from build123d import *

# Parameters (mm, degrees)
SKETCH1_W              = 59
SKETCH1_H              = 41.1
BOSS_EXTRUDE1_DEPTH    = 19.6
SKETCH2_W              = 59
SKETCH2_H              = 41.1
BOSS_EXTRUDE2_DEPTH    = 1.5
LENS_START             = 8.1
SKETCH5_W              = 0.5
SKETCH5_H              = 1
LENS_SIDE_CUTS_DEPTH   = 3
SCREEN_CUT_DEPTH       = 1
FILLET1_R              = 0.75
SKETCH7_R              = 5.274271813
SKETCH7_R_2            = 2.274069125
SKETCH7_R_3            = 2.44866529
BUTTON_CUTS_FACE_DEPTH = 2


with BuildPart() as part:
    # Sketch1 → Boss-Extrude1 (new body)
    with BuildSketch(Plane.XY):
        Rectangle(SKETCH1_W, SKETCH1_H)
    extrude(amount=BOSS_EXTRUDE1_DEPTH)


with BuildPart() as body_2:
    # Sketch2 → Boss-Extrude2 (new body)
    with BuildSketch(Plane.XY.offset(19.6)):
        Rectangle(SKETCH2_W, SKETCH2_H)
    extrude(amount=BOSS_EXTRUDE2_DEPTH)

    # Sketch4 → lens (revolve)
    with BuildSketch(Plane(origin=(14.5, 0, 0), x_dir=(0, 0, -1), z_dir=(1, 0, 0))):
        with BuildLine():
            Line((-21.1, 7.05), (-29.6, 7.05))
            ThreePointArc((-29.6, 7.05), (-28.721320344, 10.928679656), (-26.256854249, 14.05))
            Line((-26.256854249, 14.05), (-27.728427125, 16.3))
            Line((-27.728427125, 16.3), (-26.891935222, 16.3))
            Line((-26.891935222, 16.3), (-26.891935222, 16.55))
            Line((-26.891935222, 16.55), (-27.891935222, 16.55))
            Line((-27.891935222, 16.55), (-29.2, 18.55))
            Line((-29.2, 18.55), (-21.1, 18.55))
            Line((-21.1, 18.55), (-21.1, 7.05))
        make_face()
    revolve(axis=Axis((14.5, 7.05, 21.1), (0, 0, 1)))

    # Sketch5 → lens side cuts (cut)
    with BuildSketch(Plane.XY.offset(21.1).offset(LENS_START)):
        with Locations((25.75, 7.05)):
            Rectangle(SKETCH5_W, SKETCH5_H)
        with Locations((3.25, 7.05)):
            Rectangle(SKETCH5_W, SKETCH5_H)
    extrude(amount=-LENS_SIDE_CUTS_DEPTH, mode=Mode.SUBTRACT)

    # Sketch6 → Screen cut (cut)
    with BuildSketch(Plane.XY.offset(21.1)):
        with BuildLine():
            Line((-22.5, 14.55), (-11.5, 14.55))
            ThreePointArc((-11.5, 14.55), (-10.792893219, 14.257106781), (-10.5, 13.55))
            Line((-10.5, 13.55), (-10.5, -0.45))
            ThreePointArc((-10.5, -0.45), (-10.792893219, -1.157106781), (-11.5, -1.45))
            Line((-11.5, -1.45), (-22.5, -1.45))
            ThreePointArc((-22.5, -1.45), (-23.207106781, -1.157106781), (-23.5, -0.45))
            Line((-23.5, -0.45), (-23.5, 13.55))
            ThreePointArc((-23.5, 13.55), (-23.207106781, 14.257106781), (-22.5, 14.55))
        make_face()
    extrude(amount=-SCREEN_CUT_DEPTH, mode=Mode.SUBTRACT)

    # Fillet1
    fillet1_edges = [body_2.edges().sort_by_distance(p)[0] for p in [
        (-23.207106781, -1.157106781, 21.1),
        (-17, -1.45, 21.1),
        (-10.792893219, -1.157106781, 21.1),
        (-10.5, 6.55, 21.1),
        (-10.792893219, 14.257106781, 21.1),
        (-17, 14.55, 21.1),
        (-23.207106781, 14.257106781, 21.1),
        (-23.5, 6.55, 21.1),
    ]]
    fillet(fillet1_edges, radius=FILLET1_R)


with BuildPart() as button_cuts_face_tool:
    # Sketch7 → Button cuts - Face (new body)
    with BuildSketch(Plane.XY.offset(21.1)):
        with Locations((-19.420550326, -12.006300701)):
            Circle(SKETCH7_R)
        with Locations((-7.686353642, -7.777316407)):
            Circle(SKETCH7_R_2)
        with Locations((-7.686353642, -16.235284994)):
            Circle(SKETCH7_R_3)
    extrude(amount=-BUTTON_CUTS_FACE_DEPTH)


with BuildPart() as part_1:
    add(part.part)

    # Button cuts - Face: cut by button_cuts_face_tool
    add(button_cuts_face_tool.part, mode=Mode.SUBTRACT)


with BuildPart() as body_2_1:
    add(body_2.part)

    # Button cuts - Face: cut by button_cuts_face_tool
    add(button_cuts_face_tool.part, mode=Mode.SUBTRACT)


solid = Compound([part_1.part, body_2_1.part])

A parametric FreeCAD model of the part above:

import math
import FreeCAD as App
import Part
import Sketcher
from FreeCAD import Vector
Q = App.Units.Quantity


def edges_at(feature, points):
    """Names of the edges that pass closest to the given points."""
    edges = feature.Shape.Edges
    near = lambda p: min(range(len(edges)), key=lambda i: edges[i].distToShape(Part.Vertex(*p))[0])
    return sorted({f"Edge{near(p) + 1}" for p in points})

doc = App.newDocument("Part")
body = doc.addObject("PartDesign::Body", "Body")

# Sketch on XY plane
sketch1 = body.newObject("Sketcher::SketchObject", "Sketch")
sketch1.AttachmentSupport = (doc.getObject("XY_Plane"), [""])
sketch1.MapMode = "FlatFace"
sketch1.addGeometry(Part.LineSegment(Vector(-29.5, 20.55, 0), Vector(-29.5, -20.55, 0)), False)
sketch1.addGeometry(Part.LineSegment(Vector(-29.5, -20.55, 0), Vector(29.5, -20.55, 0)), False)
sketch1.addGeometry(Part.LineSegment(Vector(29.5, -20.55, 0), Vector(29.5, 20.55, 0)), False)
sketch1.addGeometry(Part.LineSegment(Vector(29.5, 20.55, 0), Vector(-29.5, 20.55, 0)), False)
sketch1.addConstraint(Sketcher.Constraint("Coincident", 0, 2, 1, 1))
sketch1.addConstraint(Sketcher.Constraint("Coincident", 1, 2, 2, 1))
sketch1.addConstraint(Sketcher.Constraint("Coincident", 2, 2, 3, 1))
sketch1.addConstraint(Sketcher.Constraint("Coincident", 3, 2, 0, 1))
sketch1.addConstraint(Sketcher.Constraint("Vertical", 0))
sketch1.addConstraint(Sketcher.Constraint("Horizontal", 1))
sketch1.addConstraint(Sketcher.Constraint("Vertical", 2))
sketch1.addConstraint(Sketcher.Constraint("Horizontal", 3))
sketch1.addConstraint(Sketcher.Constraint("Symmetric", 0, 2, 2, 2, -1, 1))
sketch1.addConstraint(Sketcher.Constraint("DistanceX", 1, 1, 1, 2, Q("59 mm")))
sketch1.addConstraint(Sketcher.Constraint("DistanceY", 0, 2, 0, 1, Q("41.1 mm")))
pad1 = body.newObject("PartDesign::Pad", "Pad")
pad1.Profile = sketch1
pad1.Length = 19.6
body2 = doc.addObject("PartDesign::Body", "Body001")

# Sketch on XY plane
sketch2 = body2.newObject("Sketcher::SketchObject", "Sketch001")
sketch2.AttachmentSupport = (doc.getObject("XY_Plane001"), [""])
sketch2.MapMode = "FlatFace"
sketch2.AttachmentOffset = App.Placement(Vector(0, 0, 19.6), App.Rotation())
sketch2.addGeometry(Part.LineSegment(Vector(-29.5, 20.55, 0), Vector(-29.5, -20.55, 0)), False)
sketch2.addGeometry(Part.LineSegment(Vector(-29.5, -20.55, 0), Vector(29.5, -20.55, 0)), False)
sketch2.addGeometry(Part.LineSegment(Vector(29.5, -20.55, 0), Vector(29.5, 20.55, 0)), False)
sketch2.addGeometry(Part.LineSegment(Vector(29.5, 20.55, 0), Vector(-29.5, 20.55, 0)), False)
sketch2.addConstraint(Sketcher.Constraint("Coincident", 0, 2, 1, 1))
sketch2.addConstraint(Sketcher.Constraint("Coincident", 1, 2, 2, 1))
sketch2.addConstraint(Sketcher.Constraint("Coincident", 2, 2, 3, 1))
sketch2.addConstraint(Sketcher.Constraint("Coincident", 3, 2, 0, 1))
sketch2.addConstraint(Sketcher.Constraint("Vertical", 0))
sketch2.addConstraint(Sketcher.Constraint("Horizontal", 1))
sketch2.addConstraint(Sketcher.Constraint("Vertical", 2))
sketch2.addConstraint(Sketcher.Constraint("Horizontal", 3))
sketch2.addConstraint(Sketcher.Constraint("Symmetric", 0, 2, 2, 2, -1, 1))
sketch2.addConstraint(Sketcher.Constraint("DistanceX", 1, 1, 1, 2, Q("59 mm")))
sketch2.addConstraint(Sketcher.Constraint("DistanceY", 0, 2, 0, 1, Q("41.1 mm")))
pad2 = body2.newObject("PartDesign::Pad", "Pad001")
pad2.Profile = sketch2
pad2.Length = 1.5

# Sketch on YZ plane
sketch3 = body2.newObject("Sketcher::SketchObject", "Sketch002")
sketch3.AttachmentSupport = (doc.getObject("YZ_Plane001"), [""])
sketch3.MapMode = "FlatFace"
sketch3.AttachmentOffset = App.Placement(Vector(0, 0, 14.5), App.Rotation())
sketch3.addGeometry(Part.LineSegment(Vector(7.05, 29.6, 0), Vector(7.05, 21.1, 0)), False)
sketch3.addGeometry(Part.LineSegment(Vector(7.05, 21.1, 0), Vector(18.55, 21.1, 0)), False)
sketch3.addGeometry(Part.LineSegment(Vector(18.55, 21.1, 0), Vector(18.55, 29.2, 0)), False)
sketch3.addGeometry(Part.LineSegment(Vector(18.55, 29.2, 0), Vector(16.55, 27.891935, 0)), False)
sketch3.addGeometry(Part.LineSegment(Vector(16.55, 27.891935, 0), Vector(16.55, 26.891935, 0)), False)
sketch3.addGeometry(Part.LineSegment(Vector(16.55, 26.891935, 0), Vector(16.3, 26.891935, 0)), False)
sketch3.addGeometry(Part.LineSegment(Vector(16.3, 26.891935, 0), Vector(16.3, 27.728427, 0)), False)
sketch3.addGeometry(Part.LineSegment(Vector(16.3, 27.728427, 0), Vector(14.05, 26.256854, 0)), False)
sketch3.addGeometry(Part.ArcOfCircle(Part.Circle(Vector(7.05, 20.6, 0), Vector(0, 0, 1), 9), math.radians(38.942441), math.radians(90)), False)
sketch3.addGeometry(Part.LineSegment(Vector(7.05, 20.6, 0), Vector(7.05, 29.6, 0)), True)  # axis
sketch3.addConstraint(Sketcher.Constraint("Coincident", 0, 2, 1, 1))
sketch3.addConstraint(Sketcher.Constraint("Coincident", 1, 2, 2, 1))
sketch3.addConstraint(Sketcher.Constraint("Coincident", 2, 2, 3, 1))
sketch3.addConstraint(Sketcher.Constraint("Coincident", 3, 2, 4, 1))
sketch3.addConstraint(Sketcher.Constraint("Coincident", 4, 2, 5, 1))
sketch3.addConstraint(Sketcher.Constraint("Coincident", 5, 2, 6, 1))
sketch3.addConstraint(Sketcher.Constraint("Coincident", 6, 2, 7, 1))
sketch3.addConstraint(Sketcher.Constraint("Coincident", 7, 2, 8, 1))
sketch3.addConstraint(Sketcher.Constraint("Coincident", 8, 2, 0, 1))
sketch3.addConstraint(Sketcher.Constraint("Vertical", 0))
sketch3.addConstraint(Sketcher.Constraint("Horizontal", 1))
sketch3.addConstraint(Sketcher.Constraint("Vertical", 2))
sketch3.addConstraint(Sketcher.Constraint("Vertical", 4))
sketch3.addConstraint(Sketcher.Constraint("Horizontal", 5))
sketch3.addConstraint(Sketcher.Constraint("Vertical", 6))
sketch3.addConstraint(Sketcher.Constraint("Vertical", 9))
sketch3.addConstraint(Sketcher.Constraint("Coincident", 9, 1, 8, 3))
sketch3.addConstraint(Sketcher.Constraint("Coincident", 9, 2, 8, 2))
sketch3.addConstraint(Sketcher.Constraint("Parallel", 3, 7))
sketch3.addConstraint(Sketcher.Constraint("Radius", 8, Q("9 mm")))
sketch3.addConstraint(Sketcher.Constraint("DistanceY", 4, 2, 4, 1, Q("1 mm")))
sketch3.addConstraint(Sketcher.Constraint("DistanceX", 1, 1, 1, 2, Q("11.5 mm")))
sketch3.addConstraint(Sketcher.Constraint("DistanceY", 0, 2, 0, 1, Q("8.5 mm")))
sketch3.addConstraint(Sketcher.Constraint("DistanceY", 2, 1, 2, 2, Q("8.1 mm")))
sketch3.addConstraint(Sketcher.Constraint("DistanceX", 3, 2, 2, 2, Q("2 mm")))
sketch3.addConstraint(Sketcher.Constraint("DistanceX", 8, 2, 7, 2, Q("7 mm")))
sketch3.addConstraint(Sketcher.Constraint("DistanceX", 5, 2, 5, 1, Q("0.25 mm")))
sketch3.addConstraint(Sketcher.Constraint("DistanceY", -1, 1, 8, 3, Q("20.6 mm")))
sketch3.addConstraint(Sketcher.Constraint("DistanceX", -1, 1, 5, 2, Q("16.3 mm")))
sketch3.addConstraint(Sketcher.Constraint("Distance", 7, Q("2.688499 mm")))
revolution = body2.newObject("PartDesign::Revolution", "Revolution")
revolution.Profile = sketch3
revolution.ReferenceAxis = (sketch3, ["Axis0"])
revolution.Angle = 360

# Sketch on XY plane
sketch4 = body2.newObject("Sketcher::SketchObject", "Sketch003")
sketch4.AttachmentSupport = (doc.getObject("XY_Plane001"), [""])
sketch4.MapMode = "FlatFace"
sketch4.AttachmentOffset = App.Placement(Vector(0, 0, 29.2), App.Rotation())
sketch4.addGeometry(Part.LineSegment(Vector(25.5, 7.55, 0), Vector(25.5, 6.55, 0)), False)
sketch4.addGeometry(Part.LineSegment(Vector(25.5, 6.55, 0), Vector(26, 6.55, 0)), False)
sketch4.addGeometry(Part.LineSegment(Vector(26, 6.55, 0), Vector(26, 7.55, 0)), False)
sketch4.addGeometry(Part.LineSegment(Vector(26, 7.55, 0), Vector(25.5, 7.55, 0)), False)
sketch4.addGeometry(Part.LineSegment(Vector(3, 7.55, 0), Vector(3, 6.55, 0)), False)
sketch4.addGeometry(Part.LineSegment(Vector(3, 6.55, 0), Vector(3.5, 6.55, 0)), False)
sketch4.addGeometry(Part.LineSegment(Vector(3.5, 6.55, 0), Vector(3.5, 7.55, 0)), False)
sketch4.addGeometry(Part.LineSegment(Vector(3.5, 7.55, 0), Vector(3, 7.55, 0)), False)
sketch4.addConstraint(Sketcher.Constraint("Coincident", 0, 2, 1, 1))
sketch4.addConstraint(Sketcher.Constraint("Coincident", 1, 2, 2, 1))
sketch4.addConstraint(Sketcher.Constraint("Coincident", 2, 2, 3, 1))
sketch4.addConstraint(Sketcher.Constraint("Coincident", 3, 2, 0, 1))
sketch4.addConstraint(Sketcher.Constraint("Coincident", 4, 2, 5, 1))
sketch4.addConstraint(Sketcher.Constraint("Coincident", 5, 2, 6, 1))
sketch4.addConstraint(Sketcher.Constraint("Coincident", 6, 2, 7, 1))
sketch4.addConstraint(Sketcher.Constraint("Coincident", 7, 2, 4, 1))
sketch4.addConstraint(Sketcher.Constraint("Vertical", 0))
sketch4.addConstraint(Sketcher.Constraint("Horizontal", 1))
sketch4.addConstraint(Sketcher.Constraint("Vertical", 2))
sketch4.addConstraint(Sketcher.Constraint("Horizontal", 3))
sketch4.addConstraint(Sketcher.Constraint("Vertical", 4))
sketch4.addConstraint(Sketcher.Constraint("Horizontal", 5))
sketch4.addConstraint(Sketcher.Constraint("Vertical", 6))
sketch4.addConstraint(Sketcher.Constraint("Horizontal", 7))
sketch4.addConstraint(Sketcher.Constraint("Horizontal", 1, 2, 4, 2))
sketch4.addConstraint(Sketcher.Constraint("Horizontal", 3, 2, 6, 2))
sketch4.addConstraint(Sketcher.Constraint("Equal", 3, 5))
sketch4.addConstraint(Sketcher.Constraint("DistanceY", 0, 2, 0, 1, Q("1 mm")))
sketch4.addConstraint(Sketcher.Constraint("DistanceX", 1, 1, 1, 2, Q("0.5 mm")))
sketch4.addConstraint(Sketcher.Constraint("DistanceX", -1, 1, 1, 2, Q("26 mm")))
sketch4.addConstraint(Sketcher.Constraint("DistanceX", -1, 1, 4, 2, Q("3 mm")))
sketch4.addConstraint(Sketcher.Constraint("DistanceY", -1, 1, 0, 2, Q("6.55 mm")))
pocket1 = body2.newObject("PartDesign::Pocket", "Pocket")
pocket1.Profile = sketch4
pocket1.Length = 3

# Sketch on XY plane
sketch5 = body2.newObject("Sketcher::SketchObject", "Sketch004")
sketch5.AttachmentSupport = (doc.getObject("XY_Plane001"), [""])
sketch5.MapMode = "FlatFace"
sketch5.AttachmentOffset = App.Placement(Vector(0, 0, 21.1), App.Rotation())
sketch5.addGeometry(Part.LineSegment(Vector(-11.5, 14.55, 0), Vector(-22.5, 14.55, 0)), False)
sketch5.addGeometry(Part.ArcOfCircle(Part.Circle(Vector(-22.5, 13.55, 0), Vector(0, 0, 1), 1), math.radians(90), math.radians(180)), False)
sketch5.addGeometry(Part.LineSegment(Vector(-23.5, 13.55, 0), Vector(-23.5, -0.45, 0)), False)
sketch5.addGeometry(Part.ArcOfCircle(Part.Circle(Vector(-22.5, -0.45, 0), Vector(0, 0, 1), 1), math.radians(-180), math.radians(-90)), False)
sketch5.addGeometry(Part.LineSegment(Vector(-22.5, -1.45, 0), Vector(-11.5, -1.45, 0)), False)
sketch5.addGeometry(Part.ArcOfCircle(Part.Circle(Vector(-11.5, -0.45, 0), Vector(0, 0, 1), 1), math.radians(-90), math.radians(0)), False)
sketch5.addGeometry(Part.LineSegment(Vector(-10.5, -0.45, 0), Vector(-10.5, 13.55, 0)), False)
sketch5.addGeometry(Part.ArcOfCircle(Part.Circle(Vector(-11.5, 13.55, 0), Vector(0, 0, 1), 1), math.radians(0), math.radians(90)), False)
sketch5.addConstraint(Sketcher.Constraint("Tangent", 0, 2, 1, 1))
sketch5.addConstraint(Sketcher.Constraint("Tangent", 1, 2, 2, 1))
sketch5.addConstraint(Sketcher.Constraint("Tangent", 2, 2, 3, 1))
sketch5.addConstraint(Sketcher.Constraint("Tangent", 3, 2, 4, 1))
sketch5.addConstraint(Sketcher.Constraint("Tangent", 4, 2, 5, 1))
sketch5.addConstraint(Sketcher.Constraint("Tangent", 5, 2, 6, 1))
sketch5.addConstraint(Sketcher.Constraint("Tangent", 6, 2, 7, 1))
sketch5.addConstraint(Sketcher.Constraint("Tangent", 7, 2, 0, 1))
sketch5.addConstraint(Sketcher.Constraint("Horizontal", 0))
sketch5.addConstraint(Sketcher.Constraint("Vertical", 2))
sketch5.addConstraint(Sketcher.Constraint("Horizontal", 4))
sketch5.addConstraint(Sketcher.Constraint("Vertical", 6))
sketch5.addConstraint(Sketcher.Constraint("Equal", 1, 3))
sketch5.addConstraint(Sketcher.Constraint("Equal", 3, 5))
sketch5.addConstraint(Sketcher.Constraint("Equal", 5, 7))
sketch5.addConstraint(Sketcher.Constraint("Radius", 1, Q("1 mm")))
sketch5.addConstraint(Sketcher.Constraint("DistanceX", 0, 2, 0, 1, Q("11 mm")))
sketch5.addConstraint(Sketcher.Constraint("DistanceY", 2, 2, 2, 1, Q("14 mm")))
sketch5.addConstraint(Sketcher.Constraint("DistanceX", 1, 3, -1, 1, Q("22.5 mm")))
sketch5.addConstraint(Sketcher.Constraint("DistanceY", -1, 1, 1, 3, Q("13.55 mm")))
pocket2 = body2.newObject("PartDesign::Pocket", "Pocket001")
pocket2.Profile = sketch5
pocket2.Length = 1
doc.recompute()

fillet = body2.newObject("PartDesign::Fillet", "Fillet")
fillet.Base = (pocket2, edges_at(pocket2, [
    (-23.207, -1.157, 21.1),
    (-17, -1.45, 21.1),
    (-10.793, -1.157, 21.1),
    (-10.5, 6.55, 21.1),
    (-10.793, 14.257, 21.1),
    (-17, 14.55, 21.1),
    (-23.207, 14.257, 21.1),
    (-23.5, 6.55, 21.1),
]))
fillet.Radius = 0.75
body3 = doc.addObject("PartDesign::Body", "Body002")
body3.AllowCompound = True

# Sketch on XY plane
sketch6 = body3.newObject("Sketcher::SketchObject", "Sketch005")
sketch6.AttachmentSupport = (doc.getObject("XY_Plane002"), [""])
sketch6.MapMode = "FlatFace"
sketch6.AttachmentOffset = App.Placement(Vector(0, 0, 21.1), App.Rotation())
sketch6.addGeometry(Part.Circle(Vector(-19.42055, -12.006301, 0), Vector(0, 0, 1), 5.274272), False)
sketch6.addGeometry(Part.Circle(Vector(-7.686354, -7.777316, 0), Vector(0, 0, 1), 2.274069), False)
sketch6.addGeometry(Part.Circle(Vector(-7.686354, -16.235285, 0), Vector(0, 0, 1), 2.448665), False)
sketch6.addConstraint(Sketcher.Constraint("Vertical", 1, 3, 2, 3))
sketch6.addConstraint(Sketcher.Constraint("Diameter", 1, Q("4.548138 mm")))
sketch6.addConstraint(Sketcher.Constraint("Diameter", 2, Q("4.897331 mm")))
sketch6.addConstraint(Sketcher.Constraint("Diameter", 0, Q("10.548544 mm")))
sketch6.addConstraint(Sketcher.Constraint("DistanceY", 0, 3, -1, 1, Q("12.006301 mm")))
sketch6.addConstraint(Sketcher.Constraint("DistanceX", 0, 3, -1, 1, Q("19.42055 mm")))
sketch6.addConstraint(Sketcher.Constraint("DistanceY", 2, 3, 1, 3, Q("8.457969 mm")))
sketch6.addConstraint(Sketcher.Constraint("DistanceX", 1, 3, -1, 1, Q("7.686354 mm")))
sketch6.addConstraint(Sketcher.Constraint("DistanceY", 1, 3, -1, 1, Q("7.777316 mm")))
pad3 = body3.newObject("PartDesign::Pad", "Pad002")
pad3.Profile = sketch6
pad3.Length = 2
pad3.Reversed = True
doc.recompute()

body4 = doc.addObject("PartDesign::Body", "Body003")
body4.BaseFeature = body3
boolean = body.newObject("PartDesign::Boolean", "Boolean")
boolean.Type = "Cut"
boolean.addObjects([body4])
doc.recompute()

boolean2 = body2.newObject("PartDesign::Boolean", "Boolean001")
boolean2.Type = "Cut"
boolean2.addObjects([body3])

doc.recompute()
